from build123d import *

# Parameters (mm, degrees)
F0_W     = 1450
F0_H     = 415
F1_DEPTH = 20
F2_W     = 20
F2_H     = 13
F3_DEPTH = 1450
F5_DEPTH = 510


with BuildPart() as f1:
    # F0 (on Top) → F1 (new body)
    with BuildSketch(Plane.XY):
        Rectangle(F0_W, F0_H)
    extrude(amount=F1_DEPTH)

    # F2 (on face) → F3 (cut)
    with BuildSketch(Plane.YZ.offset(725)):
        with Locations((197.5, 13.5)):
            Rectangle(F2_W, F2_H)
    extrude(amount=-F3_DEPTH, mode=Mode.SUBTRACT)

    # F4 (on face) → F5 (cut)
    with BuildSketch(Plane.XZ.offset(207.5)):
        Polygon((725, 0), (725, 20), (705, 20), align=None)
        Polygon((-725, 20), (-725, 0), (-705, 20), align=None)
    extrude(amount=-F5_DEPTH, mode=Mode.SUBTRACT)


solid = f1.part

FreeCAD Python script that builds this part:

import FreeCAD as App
import Part
import Sketcher
from FreeCAD import Vector
Q = App.Units.Quantity

doc = App.newDocument("Part")
body = doc.addObject("PartDesign::Body", "Body")

sketch1 = doc.addObject("Sketcher::SketchObject", "Sketch")
body.addObject(sketch1)
sketch1.AttachmentSupport = (doc.XY_Plane, [""])
sketch1.MapMode = "FlatFace"
sketch1.addGeometry(Part.LineSegment(Vector(-725, 208, 0), Vector(-725, -208, 0)), False)
sketch1.addGeometry(Part.LineSegment(Vector(-725, -208, 0), Vector(725, -208, 0)), False)
sketch1.addGeometry(Part.LineSegment(Vector(725, -208, 0), Vector(725, 208, 0)), False)
sketch1.addGeometry(Part.LineSegment(Vector(725, 208, 0), Vector(-725, 208, 0)), False)
sketch1.addConstraint(Sketcher.Constraint("Coincident", 0, 2, 1, 1))
sketch1.addConstraint(Sketcher.Constraint("Coincident", 1, 2, 2, 1))
sketch1.addConstraint(Sketcher.Constraint("Coincident", 2, 2, 3, 1))
sketch1.addConstraint(Sketcher.Constraint("Coincident", 3, 2, 0, 1))
sketch1.addConstraint(Sketcher.Constraint("Vertical", 0))
sketch1.addConstraint(Sketcher.Constraint("Horizontal", 1))
sketch1.addConstraint(Sketcher.Constraint("Vertical", 2))
sketch1.addConstraint(Sketcher.Constraint("Horizontal", 3))
sketch1.addConstraint(Sketcher.Constraint("Symmetric", 0, 2, 2, 2, -1, 1))
sketch1.addConstraint(Sketcher.Constraint("DistanceX", 1, 1, 1, 2, Q("1450 mm")))
sketch1.addConstraint(Sketcher.Constraint("DistanceY", 0, 2, 0, 1, Q("415 mm")))
pad1 = doc.addObject("PartDesign::Pad", "Pad")
body.addObject(pad1)
pad1.Profile = sketch1
pad1.Length = 20

sketch2 = doc.addObject("Sketcher::SketchObject", "Sketch001")
body.addObject(sketch2)
sketch2.AttachmentSupport = (doc.YZ_Plane, [""])
sketch2.MapMode = "FlatFace"
sketch2.AttachmentOffset = App.Placement(Vector(0, 0, 725), App.Rotation())
sketch2.addGeometry(Part.LineSegment(Vector(188, 20, 0), Vector(188, 7, 0)), False)
sketch2.addGeometry(Part.LineSegment(Vector(188, 7, 0), Vector(208, 7, 0)), False)
sketch2.addGeometry(Part.LineSegment(Vector(208, 7, 0), Vector(208, 20, 0)), False)
sketch2.addGeometry(Part.LineSegment(Vector(208, 20, 0), Vector(188, 20, 0)), False)
sketch2.addConstraint(Sketcher.Constraint("Coincident", 0, 2, 1, 1))
sketch2.addConstraint(Sketcher.Constraint("Coincident", 1, 2, 2, 1))
sketch2.addConstraint(Sketcher.Constraint("Coincident", 2, 2, 3, 1))
sketch2.addConstraint(Sketcher.Constraint("Coincident", 3, 2, 0, 1))
sketch2.addConstraint(Sketcher.Constraint("Vertical", 0))
sketch2.addConstraint(Sketcher.Constraint("Horizontal", 1))
sketch2.addConstraint(Sketcher.Constraint("Vertical", 2))
sketch2.addConstraint(Sketcher.Constraint("Horizontal", 3))
sketch2.addConstraint(Sketcher.Constraint("DistanceX", 1, 1, 1, 2, Q("20 mm")))
sketch2.addConstraint(Sketcher.Constraint("DistanceY", 0, 2, 0, 1, Q("13 mm")))
sketch2.addConstraint(Sketcher.Constraint("DistanceY", -1, 1, 0, 2, Q("7 mm")))
sketch2.addConstraint(Sketcher.Constraint("DistanceX", -1, 1, 0, 2, Q("187.5 mm")))
pocket1 = doc.addObject("PartDesign::Pocket", "Pocket")
body.addObject(pocket1)
pocket1.Profile = sketch2
pocket1.Length = 1450

sketch3 = doc.addObject("Sketcher::SketchObject", "Sketch002")
body.addObject(sketch3)
sketch3.AttachmentSupport = (doc.XZ_Plane, [""])
sketch3.MapMode = "FlatFace"
sketch3.AttachmentOffset = App.Placement(Vector(0, 0, 207.5), App.Rotation())
sketch3.addGeometry(Part.LineSegment(Vector(725, 0, 0), Vector(725, 20, 0)), False)
sketch3.addGeometry(Part.LineSegment(Vector(725, 20, 0), Vector(705, 20, 0)), False)
sketch3.addGeometry(Part.LineSegment(Vector(705, 20, 0), Vector(725, 0, 0)), False)
sketch3.addGeometry(Part.LineSegment(Vector(-725, 20, 0), Vector(-725, 0, 0)), False)
sketch3.addGeometry(Part.LineSegment(Vector(-725, 0, 0), Vector(-705, 20, 0)), False)
sketch3.addGeometry(Part.LineSegment(Vector(-705, 20, 0), Vector(-725, 20, 0)), False)
sketch3.addConstraint(Sketcher.Constraint("Coincident", 0, 2, 1, 1))
sketch3.addConstraint(Sketcher.Constraint("Coincident", 1, 2, 2, 1))
sketch3.addConstraint(Sketcher.Constraint("Coincident", 2, 2, 0, 1))
sketch3.addConstraint(Sketcher.Constraint("Coincident", 3, 2, 4, 1))
sketch3.addConstraint(Sketcher.Constraint("Coincident", 4, 2, 5, 1))
sketch3.addConstraint(Sketcher.Constraint("Coincident", 5, 2, 3, 1))
sketch3.addConstraint(Sketcher.Constraint("Vertical", 0))
sketch3.addConstraint(Sketcher.Constraint("Horizontal", 1))
sketch3.addConstraint(Sketcher.Constraint("Vertical", 3))
sketch3.addConstraint(Sketcher.Constraint("Horizontal", 5))
sketch3.addConstraint(Sketcher.Constraint("Symmetric", 2, 2, 3, 2, -1, 1))
sketch3.addConstraint(Sketcher.Constraint("Symmetric", 1, 2, 4, 2, -2))
sketch3.addConstraint(Sketcher.Constraint("PointOnObject", 2, 2, -1))
sketch3.addConstraint(Sketcher.Constraint("Perpendicular", 2, 4))
sketch3.addConstraint(Sketcher.Constraint("DistanceX", 1, 2, 1, 1, Q("20 mm")))
sketch3.addConstraint(Sketcher.Constraint("DistanceX", -1, 1, 0, 2, Q("725 mm")))
pocket2 = doc.addObject("PartDesign::Pocket", "Pocket001")
body.addObject(pocket2)
pocket2.Profile = sketch3
pocket2.Length = 510

doc.recompute()
